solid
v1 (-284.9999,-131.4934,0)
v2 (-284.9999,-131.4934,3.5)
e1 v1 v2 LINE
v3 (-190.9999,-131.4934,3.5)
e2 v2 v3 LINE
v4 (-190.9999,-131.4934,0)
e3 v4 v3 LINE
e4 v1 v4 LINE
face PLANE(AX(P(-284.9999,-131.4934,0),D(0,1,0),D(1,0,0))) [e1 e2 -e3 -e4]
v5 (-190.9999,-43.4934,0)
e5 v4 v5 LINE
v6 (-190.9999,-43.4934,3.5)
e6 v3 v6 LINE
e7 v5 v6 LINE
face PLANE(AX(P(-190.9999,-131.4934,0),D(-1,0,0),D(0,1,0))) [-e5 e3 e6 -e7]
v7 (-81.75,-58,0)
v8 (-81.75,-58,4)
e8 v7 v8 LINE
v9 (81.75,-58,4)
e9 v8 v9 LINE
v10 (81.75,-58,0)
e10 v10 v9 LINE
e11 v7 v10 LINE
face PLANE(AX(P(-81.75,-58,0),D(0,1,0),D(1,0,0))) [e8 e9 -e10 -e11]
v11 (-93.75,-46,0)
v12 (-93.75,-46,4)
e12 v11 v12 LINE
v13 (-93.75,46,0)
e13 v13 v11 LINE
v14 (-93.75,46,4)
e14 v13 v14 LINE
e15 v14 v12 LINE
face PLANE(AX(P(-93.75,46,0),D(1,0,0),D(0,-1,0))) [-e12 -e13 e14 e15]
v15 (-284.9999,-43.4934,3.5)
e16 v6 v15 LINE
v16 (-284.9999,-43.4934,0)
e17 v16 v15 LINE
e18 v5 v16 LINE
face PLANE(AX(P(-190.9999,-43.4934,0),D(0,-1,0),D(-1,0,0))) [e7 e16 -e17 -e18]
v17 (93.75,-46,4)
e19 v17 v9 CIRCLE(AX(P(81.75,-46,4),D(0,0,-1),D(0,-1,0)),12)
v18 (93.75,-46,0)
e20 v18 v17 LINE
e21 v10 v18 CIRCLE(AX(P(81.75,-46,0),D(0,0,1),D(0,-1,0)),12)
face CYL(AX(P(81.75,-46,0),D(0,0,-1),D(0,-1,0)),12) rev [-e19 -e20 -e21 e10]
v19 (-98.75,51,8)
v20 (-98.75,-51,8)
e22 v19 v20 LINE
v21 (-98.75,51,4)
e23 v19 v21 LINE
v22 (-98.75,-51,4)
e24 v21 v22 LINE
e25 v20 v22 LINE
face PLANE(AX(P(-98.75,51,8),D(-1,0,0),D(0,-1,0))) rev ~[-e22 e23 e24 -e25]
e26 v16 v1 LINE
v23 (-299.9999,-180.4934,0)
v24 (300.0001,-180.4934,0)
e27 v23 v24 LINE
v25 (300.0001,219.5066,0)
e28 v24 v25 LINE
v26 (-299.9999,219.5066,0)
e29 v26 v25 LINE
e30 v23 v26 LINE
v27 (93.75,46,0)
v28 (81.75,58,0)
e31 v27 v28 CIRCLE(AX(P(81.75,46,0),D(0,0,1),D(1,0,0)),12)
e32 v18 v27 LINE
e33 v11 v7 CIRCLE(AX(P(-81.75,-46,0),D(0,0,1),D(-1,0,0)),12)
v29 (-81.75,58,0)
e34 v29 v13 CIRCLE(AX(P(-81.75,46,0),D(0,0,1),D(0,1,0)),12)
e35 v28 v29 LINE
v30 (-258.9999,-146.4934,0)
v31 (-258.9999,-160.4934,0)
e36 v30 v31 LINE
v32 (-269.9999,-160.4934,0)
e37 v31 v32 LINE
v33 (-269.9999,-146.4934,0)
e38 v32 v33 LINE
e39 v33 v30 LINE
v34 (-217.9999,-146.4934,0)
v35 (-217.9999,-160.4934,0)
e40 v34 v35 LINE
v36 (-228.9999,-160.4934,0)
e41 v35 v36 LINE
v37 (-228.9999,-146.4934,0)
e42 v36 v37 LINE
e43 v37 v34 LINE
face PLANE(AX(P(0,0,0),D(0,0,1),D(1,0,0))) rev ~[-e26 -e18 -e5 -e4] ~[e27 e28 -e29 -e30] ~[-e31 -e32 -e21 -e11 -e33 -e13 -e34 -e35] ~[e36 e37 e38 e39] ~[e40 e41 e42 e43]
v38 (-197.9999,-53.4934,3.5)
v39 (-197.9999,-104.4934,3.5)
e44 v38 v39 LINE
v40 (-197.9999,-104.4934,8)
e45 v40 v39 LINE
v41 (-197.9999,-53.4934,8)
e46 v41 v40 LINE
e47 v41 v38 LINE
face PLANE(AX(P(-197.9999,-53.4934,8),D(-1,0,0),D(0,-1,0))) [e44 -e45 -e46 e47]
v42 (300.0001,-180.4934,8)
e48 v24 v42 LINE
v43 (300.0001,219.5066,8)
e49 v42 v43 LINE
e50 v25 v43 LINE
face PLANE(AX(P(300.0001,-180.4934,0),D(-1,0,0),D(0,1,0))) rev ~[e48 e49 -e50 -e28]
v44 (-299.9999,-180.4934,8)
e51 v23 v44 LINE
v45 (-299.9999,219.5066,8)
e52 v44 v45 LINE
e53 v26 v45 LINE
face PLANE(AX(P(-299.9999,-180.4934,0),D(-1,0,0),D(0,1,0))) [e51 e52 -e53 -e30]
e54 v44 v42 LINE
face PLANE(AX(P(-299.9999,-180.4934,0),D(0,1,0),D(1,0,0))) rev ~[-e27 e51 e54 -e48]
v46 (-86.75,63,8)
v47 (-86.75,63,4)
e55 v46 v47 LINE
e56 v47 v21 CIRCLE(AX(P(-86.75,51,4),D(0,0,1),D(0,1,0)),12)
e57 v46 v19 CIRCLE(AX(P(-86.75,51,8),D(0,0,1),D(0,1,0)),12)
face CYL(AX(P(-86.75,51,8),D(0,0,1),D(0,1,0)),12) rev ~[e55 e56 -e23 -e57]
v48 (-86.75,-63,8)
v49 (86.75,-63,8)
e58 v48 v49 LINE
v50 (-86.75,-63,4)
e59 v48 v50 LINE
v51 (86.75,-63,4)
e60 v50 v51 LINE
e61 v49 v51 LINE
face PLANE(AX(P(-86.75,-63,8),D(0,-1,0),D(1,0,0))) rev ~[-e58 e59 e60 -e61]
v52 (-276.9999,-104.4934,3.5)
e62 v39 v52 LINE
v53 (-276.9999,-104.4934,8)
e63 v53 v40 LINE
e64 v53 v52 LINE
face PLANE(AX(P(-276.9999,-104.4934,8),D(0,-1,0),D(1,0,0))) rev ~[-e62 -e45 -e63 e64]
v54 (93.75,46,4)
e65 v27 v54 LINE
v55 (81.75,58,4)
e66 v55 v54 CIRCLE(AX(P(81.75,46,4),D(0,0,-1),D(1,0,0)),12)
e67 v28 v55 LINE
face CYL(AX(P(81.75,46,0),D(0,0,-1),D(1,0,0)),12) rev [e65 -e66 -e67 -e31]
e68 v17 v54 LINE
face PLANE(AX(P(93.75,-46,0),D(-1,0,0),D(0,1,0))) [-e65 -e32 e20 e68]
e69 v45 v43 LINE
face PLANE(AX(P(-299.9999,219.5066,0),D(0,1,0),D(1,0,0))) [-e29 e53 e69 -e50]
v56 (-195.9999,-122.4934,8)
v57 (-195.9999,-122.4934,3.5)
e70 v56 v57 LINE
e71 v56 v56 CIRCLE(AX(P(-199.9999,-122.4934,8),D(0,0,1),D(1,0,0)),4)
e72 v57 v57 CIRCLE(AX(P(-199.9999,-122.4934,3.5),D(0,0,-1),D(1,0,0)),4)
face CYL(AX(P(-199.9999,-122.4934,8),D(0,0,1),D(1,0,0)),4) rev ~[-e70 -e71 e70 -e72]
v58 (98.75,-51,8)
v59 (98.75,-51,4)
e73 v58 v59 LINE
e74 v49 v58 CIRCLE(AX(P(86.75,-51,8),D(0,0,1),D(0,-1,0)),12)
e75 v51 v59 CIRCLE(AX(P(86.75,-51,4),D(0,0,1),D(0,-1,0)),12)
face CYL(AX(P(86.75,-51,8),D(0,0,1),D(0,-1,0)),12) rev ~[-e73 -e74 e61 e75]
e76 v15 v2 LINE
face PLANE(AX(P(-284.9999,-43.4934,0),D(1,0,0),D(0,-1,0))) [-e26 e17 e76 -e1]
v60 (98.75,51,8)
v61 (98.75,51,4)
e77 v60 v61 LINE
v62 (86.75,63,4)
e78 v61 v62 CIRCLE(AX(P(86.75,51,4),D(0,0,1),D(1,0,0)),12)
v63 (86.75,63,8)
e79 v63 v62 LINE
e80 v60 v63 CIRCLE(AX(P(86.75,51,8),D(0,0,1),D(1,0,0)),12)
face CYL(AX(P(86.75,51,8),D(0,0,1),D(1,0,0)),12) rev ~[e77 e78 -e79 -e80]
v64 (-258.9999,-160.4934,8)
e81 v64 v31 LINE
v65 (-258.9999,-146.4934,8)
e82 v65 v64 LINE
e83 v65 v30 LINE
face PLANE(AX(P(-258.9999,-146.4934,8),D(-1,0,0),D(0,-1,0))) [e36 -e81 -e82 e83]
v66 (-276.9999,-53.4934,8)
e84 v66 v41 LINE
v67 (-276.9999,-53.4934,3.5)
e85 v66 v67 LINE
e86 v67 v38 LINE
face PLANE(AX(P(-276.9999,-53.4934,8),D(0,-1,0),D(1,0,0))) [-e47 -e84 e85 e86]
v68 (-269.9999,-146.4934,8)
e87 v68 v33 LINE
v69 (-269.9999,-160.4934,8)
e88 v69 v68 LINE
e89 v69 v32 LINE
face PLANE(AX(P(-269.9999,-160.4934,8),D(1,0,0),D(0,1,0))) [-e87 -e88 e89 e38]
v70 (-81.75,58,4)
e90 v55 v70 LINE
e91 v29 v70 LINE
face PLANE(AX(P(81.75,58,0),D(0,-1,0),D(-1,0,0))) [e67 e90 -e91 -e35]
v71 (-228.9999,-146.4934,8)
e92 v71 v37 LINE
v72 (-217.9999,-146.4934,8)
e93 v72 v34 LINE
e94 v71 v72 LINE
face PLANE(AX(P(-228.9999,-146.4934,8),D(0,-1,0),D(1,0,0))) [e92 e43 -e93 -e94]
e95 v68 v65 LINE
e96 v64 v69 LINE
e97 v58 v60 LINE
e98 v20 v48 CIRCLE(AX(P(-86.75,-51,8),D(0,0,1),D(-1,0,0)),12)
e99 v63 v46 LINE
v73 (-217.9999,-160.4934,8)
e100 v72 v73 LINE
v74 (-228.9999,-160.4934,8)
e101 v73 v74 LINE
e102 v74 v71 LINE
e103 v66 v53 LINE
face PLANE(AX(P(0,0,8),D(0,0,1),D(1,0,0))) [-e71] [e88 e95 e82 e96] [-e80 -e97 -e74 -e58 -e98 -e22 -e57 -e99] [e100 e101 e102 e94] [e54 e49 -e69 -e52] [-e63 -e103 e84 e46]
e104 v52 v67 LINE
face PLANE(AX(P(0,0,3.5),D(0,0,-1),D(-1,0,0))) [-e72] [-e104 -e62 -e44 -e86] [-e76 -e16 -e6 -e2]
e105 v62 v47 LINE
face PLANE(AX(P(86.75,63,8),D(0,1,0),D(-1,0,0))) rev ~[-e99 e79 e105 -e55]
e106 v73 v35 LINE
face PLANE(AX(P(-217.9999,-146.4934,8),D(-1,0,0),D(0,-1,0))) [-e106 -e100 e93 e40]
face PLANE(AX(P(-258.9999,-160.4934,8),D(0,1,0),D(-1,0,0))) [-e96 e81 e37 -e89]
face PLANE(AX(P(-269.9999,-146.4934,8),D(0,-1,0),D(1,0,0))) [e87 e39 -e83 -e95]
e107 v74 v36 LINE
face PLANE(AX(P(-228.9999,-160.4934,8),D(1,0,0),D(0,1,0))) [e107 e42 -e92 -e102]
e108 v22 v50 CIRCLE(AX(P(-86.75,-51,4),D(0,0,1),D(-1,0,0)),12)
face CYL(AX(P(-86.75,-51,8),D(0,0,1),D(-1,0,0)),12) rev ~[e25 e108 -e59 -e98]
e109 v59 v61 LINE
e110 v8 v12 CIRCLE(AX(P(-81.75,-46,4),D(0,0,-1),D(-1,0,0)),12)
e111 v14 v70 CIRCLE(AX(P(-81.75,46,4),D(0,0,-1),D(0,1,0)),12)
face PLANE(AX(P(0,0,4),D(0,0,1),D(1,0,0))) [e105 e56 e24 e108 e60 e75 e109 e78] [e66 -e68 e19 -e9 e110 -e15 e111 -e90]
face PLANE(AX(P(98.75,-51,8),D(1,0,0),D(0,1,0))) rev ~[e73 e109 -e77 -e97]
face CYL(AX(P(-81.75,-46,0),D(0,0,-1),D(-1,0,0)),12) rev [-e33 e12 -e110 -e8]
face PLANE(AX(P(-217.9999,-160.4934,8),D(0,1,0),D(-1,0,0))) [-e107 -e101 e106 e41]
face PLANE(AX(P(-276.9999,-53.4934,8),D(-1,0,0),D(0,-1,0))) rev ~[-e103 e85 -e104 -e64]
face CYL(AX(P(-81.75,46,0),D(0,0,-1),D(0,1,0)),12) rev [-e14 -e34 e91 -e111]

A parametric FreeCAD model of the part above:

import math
import FreeCAD as App
import Part
import Sketcher
Q = App.Units.Quantity


def add_polygon(sketch, points):
    """Adds a closed chain of lines whose ends are joined by coincident constraints."""
    first, n = sketch.GeometryCount, len(points)
    for a, b in zip(points, points[1:] + points[:1]):
        sketch.addGeometry(Part.LineSegment(App.Vector(*a, 0), App.Vector(*b, 0)), False)
    for i in range(n):
        sketch.addConstraint(Sketcher.Constraint("Coincident", first + i, 2, first + (i + 1) % n, 1))

doc = App.newDocument("Part")
params = doc.addObject("Spreadsheet::Sheet", "Params")
for row, (alias, value) in enumerate([
    ("sketch1_radius", "12 mm"),
    ("sketch1_width", "600 mm"),
    ("sketch1_height", "400 mm"),
    ("sketch1_height2", "92 mm"),
    ("sketch1_width2", "163.5 mm"),
    ("pad1_length", "8 mm"),
    ("sketch2_radius", "12 mm"),
    ("sketch2_height", "102 mm"),
    ("sketch2_width", "173.5 mm"),
    ("pocket1_length", "4 mm"),
    ("sketch3_diameter", "8 mm"),
    ("sketch3_width", "11 mm"),
    ("sketch3_width2", "79 mm"),
    ("sketch3_height", "14 mm"),
    ("sketch3_height2", "51 mm"),
    ("sketch4_diameter", "8 mm"),
    ("sketch4_width", "94 mm"),
    ("sketch4_height", "88 mm"),
    ("sketch4_width2", "79 mm"),
    ("sketch4_height2", "51 mm"),
    ("pocket3_length", "3.5 mm"),
], start=1):
    params.set(f"A{row}", alias)
    params.set(f"B{row}", "=" + value)
    params.setAlias(f"B{row}", alias)

body = doc.addObject("PartDesign::Body", "Body")

# Sketch on XY plane
sketch1 = body.newObject("Sketcher::SketchObject", "Sketch")
sketch1.AttachmentSupport = (doc.getObject("XY_Plane"), [""])
sketch1.MapMode = "FlatFace"
add_polygon(sketch1, [(-299.9999, 219.5066), (-299.9999, -180.4934), (300.0001, -180.4934), (300.0001, 219.5066)])  # lines 0-3
sketch1.addGeometry(Part.LineSegment(App.Vector(-93.75, -46, 0), App.Vector(-93.75, 46, 0)), False)  # 4
sketch1.addGeometry(Part.ArcOfCircle(Part.Circle(App.Vector(-81.75, 46, 0), App.Vector(0, 0, 1), 12), math.radians(90), math.radians(180)), False)  # 5
sketch1.addGeometry(Part.LineSegment(App.Vector(-81.75, 58, 0), App.Vector(81.75, 58, 0)), False)  # 6
sketch1.addGeometry(Part.ArcOfCircle(Part.Circle(App.Vector(81.75, 46, 0), App.Vector(0, 0, 1), 12), math.radians(0), math.radians(90)), False)  # 7
sketch1.addGeometry(Part.LineSegment(App.Vector(93.75, 46, 0), App.Vector(93.75, -46, 0)), False)  # 8
sketch1.addGeometry(Part.ArcOfCircle(Part.Circle(App.Vector(81.75, -46, 0), App.Vector(0, 0, 1), 12), math.radians(-90), math.radians(0)), False)  # 9
sketch1.addGeometry(Part.LineSegment(App.Vector(81.75, -58, 0), App.Vector(-81.75, -58, 0)), False)  # 10
sketch1.addGeometry(Part.ArcOfCircle(Part.Circle(App.Vector(-81.75, -46, 0), App.Vector(0, 0, 1), 12), math.radians(180), math.radians(270)), False)  # 11
sketch1.addConstraint([
    Sketcher.Constraint("Tangent", 4, 2, 5, 2),
    Sketcher.Constraint("Tangent", 5, 1, 6, 1),
    Sketcher.Constraint("Tangent", 6, 2, 7, 2),
    Sketcher.Constraint("Tangent", 7, 1, 8, 1),
    Sketcher.Constraint("Tangent", 8, 2, 9, 2),
    Sketcher.Constraint("Tangent", 9, 1, 10, 1),
    Sketcher.Constraint("Tangent", 10, 2, 11, 2),
    Sketcher.Constraint("Tangent", 11, 1, 4, 1),
    Sketcher.Constraint("Vertical", 0),
    Sketcher.Constraint("Horizontal", 1),
    Sketcher.Constraint("Vertical", 2),
    Sketcher.Constraint("Horizontal", 3),
    Sketcher.Constraint("Vertical", 4),
    Sketcher.Constraint("Horizontal", 6),
    Sketcher.Constraint("Vertical", 8),
    Sketcher.Constraint("Horizontal", 10),
    Sketcher.Constraint("Equal", 5, 7),
    Sketcher.Constraint("Equal", 7, 9),
    Sketcher.Constraint("Equal", 9, 11),
    Sketcher.Constraint("Symmetric", 5, 3, 9, 3, -1, 1),
    Sketcher.Constraint("Radius", 5, Q("12 mm")),
    Sketcher.Constraint("DistanceX", 1, 1, 1, 2, Q("600 mm")),
    Sketcher.Constraint("DistanceY", 0, 2, 0, 1, Q("400 mm")),
    Sketcher.Constraint("DistanceY", 4, 1, 4, 2, Q("92 mm")),
    Sketcher.Constraint("DistanceX", 6, 1, 6, 2, Q("163.5 mm")),
    Sketcher.Constraint("DistanceX", 0, 2, -1, 1, Q("300 mm")),
    Sketcher.Constraint("DistanceY", 0, 2, -1, 1, Q("180.4934 mm")),
])
sketch1.setExpression("Constraints[24]", "Params.sketch1_radius")
sketch1.setExpression("Constraints[25]", "Params.sketch1_width")
sketch1.setExpression("Constraints[26]", "Params.sketch1_height")
sketch1.setExpression("Constraints[27]", "Params.sketch1_height2")
sketch1.setExpression("Constraints[28]", "Params.sketch1_width2")
pad1 = body.newObject("PartDesign::Pad", "Pad")
pad1.Profile = sketch1
pad1.setExpression("Length", "Params.pad1_length")

# Sketch on XY plane
sketch2 = body.newObject("Sketcher::SketchObject", "Sketch001")
sketch2.AttachmentSupport = (doc.getObject("XY_Plane"), [""])
sketch2.MapMode = "FlatFace"
sketch2.AttachmentOffset = App.Placement(App.Vector(0, 0, 8), App.Rotation())
sketch2.addGeometry([
    Part.LineSegment(App.Vector(-86.75, -63, 0), App.Vector(86.75, -63, 0)),  # 0
    Part.ArcOfCircle(Part.Circle(App.Vector(86.75, -51, 0), App.Vector(0, 0, 1), 12), math.radians(-90), math.radians(0)),  # 1
    Part.LineSegment(App.Vector(98.75, -51, 0), App.Vector(98.75, 51, 0)),  # 2
    Part.ArcOfCircle(Part.Circle(App.Vector(86.75, 51, 0), App.Vector(0, 0, 1), 12), math.radians(0), math.radians(90)),  # 3
    Part.LineSegment(App.Vector(86.75, 63, 0), App.Vector(-86.75, 63, 0)),  # 4
    Part.ArcOfCircle(Part.Circle(App.Vector(-86.75, 51, 0), App.Vector(0, 0, 1), 12), math.radians(90), math.radians(180)),  # 5
    Part.LineSegment(App.Vector(-98.75, 51, 0), App.Vector(-98.75, -51, 0)),  # 6
    Part.ArcOfCircle(Part.Circle(App.Vector(-86.75, -51, 0), App.Vector(0, 0, 1), 12), math.radians(180), math.radians(270)),  # 7
], False)
sketch2.addConstraint([
    Sketcher.Constraint("Tangent", 0, 2, 1, 1),
    Sketcher.Constraint("Tangent", 1, 2, 2, 1),
    Sketcher.Constraint("Tangent", 2, 2, 3, 1),
    Sketcher.Constraint("Tangent", 3, 2, 4, 1),
    Sketcher.Constraint("Tangent", 4, 2, 5, 1),
    Sketcher.Constraint("Tangent", 5, 2, 6, 1),
    Sketcher.Constraint("Tangent", 6, 2, 7, 1),
    Sketcher.Constraint("Tangent", 7, 2, 0, 1),
    Sketcher.Constraint("Horizontal", 0),
    Sketcher.Constraint("Vertical", 2),
    Sketcher.Constraint("Horizontal", 4),
    Sketcher.Constraint("Vertical", 6),
    Sketcher.Constraint("Equal", 1, 3),
    Sketcher.Constraint("Equal", 3, 5),
    Sketcher.Constraint("Equal", 5, 7),
    Sketcher.Constraint("Symmetric", 1, 3, 5, 3, -1, 1),
    Sketcher.Constraint("Radius", 1, Q("12 mm")),
    Sketcher.Constraint("DistanceY", 2, 1, 2, 2, Q("102 mm")),
    Sketcher.Constraint("DistanceX", 0, 1, 0, 2, Q("173.5 mm")),
])
sketch2.setExpression("Constraints[16]", "Params.sketch2_radius")
sketch2.setExpression("Constraints[17]", "Params.sketch2_height")
sketch2.setExpression("Constraints[18]", "Params.sketch2_width")
pocket1 = body.newObject("PartDesign::Pocket", "Pocket")
pocket1.Profile = sketch2
pocket1.setExpression("Length", "Params.pocket1_length")

# Sketch on XY plane
sketch3 = body.newObject("Sketcher::SketchObject", "Sketch002")
sketch3.AttachmentSupport = (doc.getObject("XY_Plane"), [""])
sketch3.MapMode = "FlatFace"
sketch3.AttachmentOffset = App.Placement(App.Vector(0, 0, 8), App.Rotation())
add_polygon(sketch3, [(-258.9999, -146.4934), (-269.9999, -146.4934), (-269.9999, -160.4934), (-258.9999, -160.4934)])  # lines 0-3
add_polygon(sketch3, [(-217.9999, -146.4934), (-228.9999, -146.4934), (-228.9999, -160.4934), (-217.9999, -160.4934)])  # lines 4-7
sketch3.addGeometry(Part.Circle(App.Vector(-199.9999, -122.4934, 0), App.Vector(0, 0, 1), 4), False)  # 8
add_polygon(sketch3, [(-276.9999, -53.4934), (-276.9999, -104.4934), (-197.9999, -104.4934), (-197.9999, -53.4934)])  # lines 9-12
sketch3.addConstraint([
    Sketcher.Constraint("Horizontal", 0),
    Sketcher.Constraint("Vertical", 1),
    Sketcher.Constraint("Horizontal", 2),
    Sketcher.Constraint("Vertical", 3),
    Sketcher.Constraint("Horizontal", 4),
    Sketcher.Constraint("Vertical", 5),
    Sketcher.Constraint("Horizontal", 6),
    Sketcher.Constraint("Vertical", 7),
    Sketcher.Constraint("Vertical", 9),
    Sketcher.Constraint("Horizontal", 10),
    Sketcher.Constraint("Vertical", 11),
    Sketcher.Constraint("Horizontal", 12),
    Sketcher.Constraint("Horizontal", 3, 2, 4, 2),
    Sketcher.Constraint("Horizontal", 2, 2, 5, 2),
    Sketcher.Constraint("Equal", 2, 4),
    Sketcher.Constraint("Diameter", 8, Q("8 mm")),
    Sketcher.Constraint("DistanceX", 0, 2, 0, 1, Q("11 mm")),
    Sketcher.Constraint("DistanceX", 10, 1, 10, 2, Q("79 mm")),
    Sketcher.Constraint("DistanceY", 1, 2, 1, 1, Q("14 mm")),
    Sketcher.Constraint("DistanceY", 9, 2, 9, 1, Q("51 mm")),
    Sketcher.Constraint("DistanceX", 3, 2, 4, 2, Q("30 mm")),
    Sketcher.Constraint("DistanceX", 7, 2, 10, 2, Q("20 mm")),
    Sketcher.Constraint("DistanceX", 8, 3, -1, 1, Q("200 mm")),
    Sketcher.Constraint("DistanceX", 0, 2, -1, 1, Q("270 mm")),
    Sketcher.Constraint("DistanceY", 0, 2, 8, 3, Q("24 mm")),
    Sketcher.Constraint("DistanceY", 0, 2, 9, 2, Q("42 mm")),
    Sketcher.Constraint("DistanceY", 8, 3, -1, 1, Q("122.4934 mm")),
])
sketch3.setExpression("Constraints[27]", "Params.sketch3_diameter")
sketch3.setExpression("Constraints[28]", "Params.sketch3_width")
sketch3.setExpression("Constraints[29]", "Params.sketch3_width2")
sketch3.setExpression("Constraints[30]", "Params.sketch3_height")
sketch3.setExpression("Constraints[31]", "Params.sketch3_height2")
pocket2 = body.newObject("PartDesign::Pocket", "Pocket001")
pocket2.Profile = sketch3
pocket2.Type = "ThroughAll"

# Sketch on XY plane
sketch4 = body.newObject("Sketcher::SketchObject", "Sketch003")
sketch4.AttachmentSupport = (doc.getObject("XY_Plane"), [""])
sketch4.MapMode = "FlatFace"
add_polygon(sketch4, [(-284.9999, -43.4934), (-190.9999, -43.4934), (-190.9999, -131.4934), (-284.9999, -131.4934)])  # lines 0-3
sketch4.addGeometry(Part.Circle(App.Vector(-199.9999, -122.4934, 0), App.Vector(0, 0, 1), 4), False)  # 4
add_polygon(sketch4, [(-276.9999, -53.4934), (-276.9999, -104.4934), (-197.9999, -104.4934), (-197.9999, -53.4934)])  # lines 5-8
sketch4.addConstraint([
    Sketcher.Constraint("Horizontal", 0),
    Sketcher.Constraint("Vertical", 1),
    Sketcher.Constraint("Horizontal", 2),
    Sketcher.Constraint("Vertical", 3),
    Sketcher.Constraint("Vertical", 5),
    Sketcher.Constraint("Horizontal", 6),
    Sketcher.Constraint("Vertical", 7),
    Sketcher.Constraint("Horizontal", 8),
    Sketcher.Constraint("Diameter", 4, Q("8 mm")),
    Sketcher.Constraint("DistanceX", 0, 1, 0, 2, Q("94 mm")),
    Sketcher.Constraint("DistanceY", 1, 2, 1, 1, Q("88 mm")),
    Sketcher.Constraint("DistanceX", 2, 2, 5, 2, Q("8 mm")),
    Sketcher.Constraint("DistanceY", 7, 2, 0, 2, Q("10 mm")),
    Sketcher.Constraint("DistanceX", 6, 1, 6, 2, Q("79 mm")),
    Sketcher.Constraint("DistanceY", 5, 2, 5, 1, Q("51 mm")),
    Sketcher.Constraint("DistanceX", 4, 3, -1, 1, Q("200 mm")),
    Sketcher.Constraint("DistanceX", 0, 2, -1, 1, Q("191 mm")),
    Sketcher.Constraint("DistanceY", 4, 3, 0, 2, Q("79 mm")),
    Sketcher.Constraint("DistanceY", 4, 3, -1, 1, Q("122.4934 mm")),
])
sketch4.setExpression("Constraints[16]", "Params.sketch4_diameter")
sketch4.setExpression("Constraints[17]", "Params.sketch4_width")
sketch4.setExpression("Constraints[18]", "Params.sketch4_height")
sketch4.setExpression("Constraints[21]", "Params.sketch4_width2")
sketch4.setExpression("Constraints[22]", "Params.sketch4_height2")
pocket3 = body.newObject("PartDesign::Pocket", "Pocket002")
pocket3.Profile = sketch4
pocket3.setExpression("Length", "Params.pocket3_length")
pocket3.Reversed = True

doc.recompute()
